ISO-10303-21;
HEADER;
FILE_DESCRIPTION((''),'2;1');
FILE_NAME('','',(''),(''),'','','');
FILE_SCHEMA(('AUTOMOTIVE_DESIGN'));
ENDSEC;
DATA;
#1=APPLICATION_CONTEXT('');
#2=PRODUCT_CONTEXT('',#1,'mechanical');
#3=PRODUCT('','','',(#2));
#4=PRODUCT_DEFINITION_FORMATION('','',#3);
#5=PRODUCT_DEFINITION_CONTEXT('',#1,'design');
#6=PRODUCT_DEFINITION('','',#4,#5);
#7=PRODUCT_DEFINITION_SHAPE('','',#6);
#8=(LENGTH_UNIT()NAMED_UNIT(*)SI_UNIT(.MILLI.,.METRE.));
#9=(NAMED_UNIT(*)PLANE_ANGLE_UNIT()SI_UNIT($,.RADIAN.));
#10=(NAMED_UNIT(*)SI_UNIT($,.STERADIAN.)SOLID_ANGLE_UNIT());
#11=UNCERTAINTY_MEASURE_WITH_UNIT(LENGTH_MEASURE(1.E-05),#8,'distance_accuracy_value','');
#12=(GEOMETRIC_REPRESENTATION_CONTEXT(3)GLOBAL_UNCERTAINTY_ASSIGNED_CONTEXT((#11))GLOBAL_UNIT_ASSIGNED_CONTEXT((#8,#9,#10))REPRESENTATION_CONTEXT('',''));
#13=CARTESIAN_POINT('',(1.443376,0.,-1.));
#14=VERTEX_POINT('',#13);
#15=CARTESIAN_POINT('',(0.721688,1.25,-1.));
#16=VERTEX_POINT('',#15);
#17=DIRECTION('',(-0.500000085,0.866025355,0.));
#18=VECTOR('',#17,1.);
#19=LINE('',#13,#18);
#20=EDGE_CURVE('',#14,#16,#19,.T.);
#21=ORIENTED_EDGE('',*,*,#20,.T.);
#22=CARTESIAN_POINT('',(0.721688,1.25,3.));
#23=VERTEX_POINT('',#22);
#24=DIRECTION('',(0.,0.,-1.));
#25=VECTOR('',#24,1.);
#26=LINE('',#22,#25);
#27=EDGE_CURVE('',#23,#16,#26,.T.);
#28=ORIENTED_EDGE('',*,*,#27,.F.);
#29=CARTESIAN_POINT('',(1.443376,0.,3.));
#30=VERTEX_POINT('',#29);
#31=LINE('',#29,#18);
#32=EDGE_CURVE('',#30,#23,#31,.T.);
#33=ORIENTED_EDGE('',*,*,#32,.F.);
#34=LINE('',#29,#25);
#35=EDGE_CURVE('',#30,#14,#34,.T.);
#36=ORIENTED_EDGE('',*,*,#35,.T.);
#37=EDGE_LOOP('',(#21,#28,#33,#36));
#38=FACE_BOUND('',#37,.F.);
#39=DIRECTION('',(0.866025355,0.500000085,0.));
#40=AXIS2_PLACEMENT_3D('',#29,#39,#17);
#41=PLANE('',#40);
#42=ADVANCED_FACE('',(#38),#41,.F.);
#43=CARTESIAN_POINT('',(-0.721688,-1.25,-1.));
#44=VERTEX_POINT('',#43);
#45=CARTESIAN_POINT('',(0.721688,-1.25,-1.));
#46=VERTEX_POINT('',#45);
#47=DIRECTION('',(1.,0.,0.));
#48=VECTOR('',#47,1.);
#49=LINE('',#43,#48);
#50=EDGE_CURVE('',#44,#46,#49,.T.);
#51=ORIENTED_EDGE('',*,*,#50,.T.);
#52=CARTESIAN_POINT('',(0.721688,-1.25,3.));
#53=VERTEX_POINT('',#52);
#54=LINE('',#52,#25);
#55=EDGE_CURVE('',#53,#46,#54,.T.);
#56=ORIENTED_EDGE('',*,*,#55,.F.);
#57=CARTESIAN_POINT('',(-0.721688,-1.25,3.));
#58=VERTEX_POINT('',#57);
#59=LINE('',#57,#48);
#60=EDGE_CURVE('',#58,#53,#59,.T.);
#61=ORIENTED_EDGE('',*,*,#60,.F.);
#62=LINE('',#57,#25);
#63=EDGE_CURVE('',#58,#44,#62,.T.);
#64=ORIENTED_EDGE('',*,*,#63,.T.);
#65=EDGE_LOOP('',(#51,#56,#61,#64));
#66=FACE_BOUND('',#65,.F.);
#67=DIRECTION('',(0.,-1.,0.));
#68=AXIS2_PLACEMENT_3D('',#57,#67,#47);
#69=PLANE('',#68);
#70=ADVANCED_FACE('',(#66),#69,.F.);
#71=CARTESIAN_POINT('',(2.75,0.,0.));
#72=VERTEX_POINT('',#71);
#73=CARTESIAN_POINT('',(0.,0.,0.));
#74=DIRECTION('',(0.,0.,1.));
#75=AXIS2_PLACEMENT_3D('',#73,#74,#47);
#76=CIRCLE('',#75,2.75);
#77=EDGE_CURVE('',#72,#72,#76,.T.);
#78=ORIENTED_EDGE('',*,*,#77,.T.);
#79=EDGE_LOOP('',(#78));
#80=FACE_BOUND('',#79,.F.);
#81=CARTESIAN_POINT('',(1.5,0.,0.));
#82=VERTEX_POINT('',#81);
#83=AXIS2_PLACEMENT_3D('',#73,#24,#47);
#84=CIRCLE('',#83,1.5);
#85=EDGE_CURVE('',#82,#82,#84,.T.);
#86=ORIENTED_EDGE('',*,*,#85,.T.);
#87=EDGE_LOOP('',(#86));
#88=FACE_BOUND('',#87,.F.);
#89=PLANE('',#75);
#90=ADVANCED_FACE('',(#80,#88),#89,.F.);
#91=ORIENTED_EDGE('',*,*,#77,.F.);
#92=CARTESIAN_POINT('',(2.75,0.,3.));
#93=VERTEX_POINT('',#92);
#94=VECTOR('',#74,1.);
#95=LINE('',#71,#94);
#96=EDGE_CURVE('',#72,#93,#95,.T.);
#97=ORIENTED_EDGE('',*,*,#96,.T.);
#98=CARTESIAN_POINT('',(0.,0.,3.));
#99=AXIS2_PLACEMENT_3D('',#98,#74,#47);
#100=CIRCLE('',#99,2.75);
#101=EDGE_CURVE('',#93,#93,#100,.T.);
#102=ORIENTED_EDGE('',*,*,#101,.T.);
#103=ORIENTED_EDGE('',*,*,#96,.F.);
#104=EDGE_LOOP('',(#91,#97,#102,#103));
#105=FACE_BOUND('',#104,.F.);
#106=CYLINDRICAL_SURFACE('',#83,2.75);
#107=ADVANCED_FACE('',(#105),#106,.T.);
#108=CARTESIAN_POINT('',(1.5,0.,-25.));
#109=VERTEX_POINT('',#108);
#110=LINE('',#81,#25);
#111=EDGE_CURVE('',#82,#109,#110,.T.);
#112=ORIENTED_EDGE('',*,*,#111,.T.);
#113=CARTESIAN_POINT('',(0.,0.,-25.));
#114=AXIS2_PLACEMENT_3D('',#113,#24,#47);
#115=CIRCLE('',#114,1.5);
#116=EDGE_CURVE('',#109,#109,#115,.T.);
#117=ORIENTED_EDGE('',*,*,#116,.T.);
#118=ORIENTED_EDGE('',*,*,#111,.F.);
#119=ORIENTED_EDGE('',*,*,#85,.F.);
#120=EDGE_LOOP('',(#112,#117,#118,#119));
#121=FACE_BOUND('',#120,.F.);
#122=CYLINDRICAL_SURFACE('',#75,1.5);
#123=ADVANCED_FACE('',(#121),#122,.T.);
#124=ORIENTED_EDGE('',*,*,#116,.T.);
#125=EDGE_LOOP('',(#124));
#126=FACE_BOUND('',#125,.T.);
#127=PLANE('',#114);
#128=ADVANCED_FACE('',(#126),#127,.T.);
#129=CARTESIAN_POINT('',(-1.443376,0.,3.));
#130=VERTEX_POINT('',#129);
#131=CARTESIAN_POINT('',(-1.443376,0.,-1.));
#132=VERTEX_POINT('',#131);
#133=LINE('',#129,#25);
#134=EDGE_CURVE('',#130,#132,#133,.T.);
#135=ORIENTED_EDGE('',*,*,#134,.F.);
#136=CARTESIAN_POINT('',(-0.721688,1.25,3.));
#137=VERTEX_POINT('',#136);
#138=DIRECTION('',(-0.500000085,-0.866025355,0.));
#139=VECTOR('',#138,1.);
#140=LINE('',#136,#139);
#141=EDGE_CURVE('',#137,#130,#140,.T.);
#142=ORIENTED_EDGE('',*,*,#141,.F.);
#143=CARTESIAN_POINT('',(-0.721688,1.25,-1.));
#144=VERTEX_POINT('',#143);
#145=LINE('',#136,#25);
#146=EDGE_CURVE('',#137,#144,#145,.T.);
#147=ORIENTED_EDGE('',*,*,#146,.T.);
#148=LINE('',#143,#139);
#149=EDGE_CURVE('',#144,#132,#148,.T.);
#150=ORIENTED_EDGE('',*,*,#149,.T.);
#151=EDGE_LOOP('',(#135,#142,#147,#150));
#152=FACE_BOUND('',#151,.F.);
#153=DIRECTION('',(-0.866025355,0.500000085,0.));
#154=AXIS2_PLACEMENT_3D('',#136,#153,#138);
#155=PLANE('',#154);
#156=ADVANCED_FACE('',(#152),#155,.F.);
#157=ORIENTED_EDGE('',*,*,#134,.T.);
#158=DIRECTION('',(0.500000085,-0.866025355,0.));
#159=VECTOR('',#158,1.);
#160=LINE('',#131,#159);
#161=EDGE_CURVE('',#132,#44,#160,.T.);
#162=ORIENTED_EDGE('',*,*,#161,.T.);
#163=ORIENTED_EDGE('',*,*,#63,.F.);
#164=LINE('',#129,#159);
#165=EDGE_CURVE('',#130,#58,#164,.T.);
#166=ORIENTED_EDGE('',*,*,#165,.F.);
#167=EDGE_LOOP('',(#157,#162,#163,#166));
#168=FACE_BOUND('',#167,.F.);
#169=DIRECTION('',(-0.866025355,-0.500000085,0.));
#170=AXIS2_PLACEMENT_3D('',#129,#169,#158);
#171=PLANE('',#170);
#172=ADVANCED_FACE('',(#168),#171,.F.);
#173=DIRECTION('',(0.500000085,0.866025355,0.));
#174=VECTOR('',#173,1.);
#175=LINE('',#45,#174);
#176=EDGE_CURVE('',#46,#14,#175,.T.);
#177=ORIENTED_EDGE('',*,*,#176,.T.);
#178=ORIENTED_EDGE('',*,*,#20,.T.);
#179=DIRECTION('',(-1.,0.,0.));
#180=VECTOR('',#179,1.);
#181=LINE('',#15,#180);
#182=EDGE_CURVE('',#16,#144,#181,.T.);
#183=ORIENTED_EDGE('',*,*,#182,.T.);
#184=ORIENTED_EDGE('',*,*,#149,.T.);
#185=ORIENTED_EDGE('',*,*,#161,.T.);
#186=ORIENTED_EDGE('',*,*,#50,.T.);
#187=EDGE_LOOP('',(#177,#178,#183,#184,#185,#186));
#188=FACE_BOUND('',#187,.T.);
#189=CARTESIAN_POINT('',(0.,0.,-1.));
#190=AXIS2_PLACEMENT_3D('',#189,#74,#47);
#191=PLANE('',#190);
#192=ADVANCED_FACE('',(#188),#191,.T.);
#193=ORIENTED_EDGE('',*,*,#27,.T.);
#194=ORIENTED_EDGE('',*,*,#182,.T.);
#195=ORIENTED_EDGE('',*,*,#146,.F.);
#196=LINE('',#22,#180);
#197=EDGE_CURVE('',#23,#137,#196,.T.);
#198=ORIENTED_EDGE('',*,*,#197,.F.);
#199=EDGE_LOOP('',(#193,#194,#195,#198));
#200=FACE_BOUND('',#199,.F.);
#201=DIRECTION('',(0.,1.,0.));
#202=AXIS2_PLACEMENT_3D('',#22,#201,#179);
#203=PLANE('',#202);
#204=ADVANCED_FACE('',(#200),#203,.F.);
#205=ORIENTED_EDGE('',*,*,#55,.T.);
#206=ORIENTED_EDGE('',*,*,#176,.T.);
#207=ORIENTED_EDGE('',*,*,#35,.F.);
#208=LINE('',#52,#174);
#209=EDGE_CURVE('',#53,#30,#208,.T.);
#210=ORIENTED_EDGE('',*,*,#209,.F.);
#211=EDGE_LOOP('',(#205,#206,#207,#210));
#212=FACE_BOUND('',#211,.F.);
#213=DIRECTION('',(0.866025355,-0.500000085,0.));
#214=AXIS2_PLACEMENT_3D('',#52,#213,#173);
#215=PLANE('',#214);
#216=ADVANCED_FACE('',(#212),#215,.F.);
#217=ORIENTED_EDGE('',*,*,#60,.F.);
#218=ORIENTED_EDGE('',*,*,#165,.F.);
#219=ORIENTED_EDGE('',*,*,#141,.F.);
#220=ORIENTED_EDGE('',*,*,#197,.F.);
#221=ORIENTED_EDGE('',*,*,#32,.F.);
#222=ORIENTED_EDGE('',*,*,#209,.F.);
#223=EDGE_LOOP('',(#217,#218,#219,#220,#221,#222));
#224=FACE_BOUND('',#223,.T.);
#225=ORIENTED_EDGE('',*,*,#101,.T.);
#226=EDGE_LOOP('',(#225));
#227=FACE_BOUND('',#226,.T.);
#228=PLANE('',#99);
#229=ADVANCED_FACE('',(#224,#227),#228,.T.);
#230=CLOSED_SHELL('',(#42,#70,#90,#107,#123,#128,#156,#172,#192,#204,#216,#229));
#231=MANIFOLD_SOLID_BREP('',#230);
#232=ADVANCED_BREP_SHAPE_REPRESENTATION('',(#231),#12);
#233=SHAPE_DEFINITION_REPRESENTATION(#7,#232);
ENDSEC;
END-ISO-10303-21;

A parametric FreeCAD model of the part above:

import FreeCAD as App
import Part
import Sketcher
Q = App.Units.Quantity


def add_polygon(sketch, points):
    """Adds a closed chain of lines whose ends are joined by coincident constraints."""
    first, n = sketch.GeometryCount, len(points)
    for a, b in zip(points, points[1:] + points[:1]):
        sketch.addGeometry(Part.LineSegment(App.Vector(*a, 0), App.Vector(*b, 0)), False)
    for i in range(n):
        sketch.addConstraint(Sketcher.Constraint("Coincident", first + i, 2, first + (i + 1) % n, 1))

doc = App.newDocument("Part")
params = doc.addObject("Spreadsheet::Sheet", "Params")
for row, (alias, value) in enumerate([
    ("sketch1_diameter", "5.5 mm"),
    ("pad1_length", "3 mm"),
    ("sketch2_diameter", "3 mm"),
    ("pad2_length", "25 mm"),
    ("pocket1_length", "4 mm"),
], start=1):
    params.set(f"A{row}", alias)
    params.set(f"B{row}", "=" + value)
    params.setAlias(f"B{row}", alias)

body = doc.addObject("PartDesign::Body", "Body")

sketch1 = doc.addObject("Sketcher::SketchObject", "Sketch")
body.addObject(sketch1)
sketch1.AttachmentSupport = (doc.XY_Plane, [""])
sketch1.MapMode = "FlatFace"
sketch1.addGeometry(Part.Circle(App.Vector(0, 0, 0), App.Vector(0, 0, 1), 2.8), False)
sketch1.addConstraint(Sketcher.Constraint("Coincident", 0, 3, -1, 1))
sketch1.addConstraint(Sketcher.Constraint("Diameter", 0, 5.5))
sketch1.setExpression("Constraints[1]", "Params.sketch1_diameter")
pad1 = doc.addObject("PartDesign::Pad", "Pad")
body.addObject(pad1)
pad1.Profile = sketch1
pad1.setExpression("Length", "Params.pad1_length")

sketch2 = doc.addObject("Sketcher::SketchObject", "Sketch001")
body.addObject(sketch2)
sketch2.AttachmentSupport = (doc.XY_Plane, [""])
sketch2.MapMode = "FlatFace"
sketch2.addGeometry(Part.Circle(App.Vector(0, 0, 0), App.Vector(0, 0, 1), 1.5), False)
sketch2.addConstraint(Sketcher.Constraint("Coincident", 0, 3, -1, 1))
sketch2.addConstraint(Sketcher.Constraint("Diameter", 0, 3.0))
sketch2.setExpression("Constraints[1]", "Params.sketch2_diameter")
pad2 = doc.addObject("PartDesign::Pad", "Pad001")
body.addObject(pad2)
pad2.Profile = sketch2
pad2.setExpression("Length", "Params.pad2_length")
pad2.Reversed = True

sketch3 = doc.addObject("Sketcher::SketchObject", "Sketch002")
body.addObject(sketch3)
sketch3.AttachmentSupport = (doc.XY_Plane, [""])
sketch3.MapMode = "FlatFace"
sketch3.AttachmentOffset = App.Placement(App.Vector(0, 0, 3), App.Rotation())
add_polygon(sketch3, [(0.7, -1.2), (1.4, 0), (0.7, 1.2), (-0.7, 1.2), (-1.4, 0), (-0.7, -1.2)])
sketch3.addConstraint(Sketcher.Constraint("Horizontal", 2))
sketch3.addConstraint(Sketcher.Constraint("Horizontal", 5))
sketch3.addConstraint(Sketcher.Constraint("Symmetric", 0, 2, 3, 2, -1, 1))
sketch3.addConstraint(Sketcher.Constraint("Symmetric", 1, 2, 4, 2, -1, 1))
sketch3.addConstraint(Sketcher.Constraint("PointOnObject", 0, 2, -1))
sketch3.addConstraint(Sketcher.Constraint("Parallel", 0, 3))
sketch3.addConstraint(Sketcher.Constraint("Vertical", 2, 2, 4, 2))
sketch3.addConstraint(Sketcher.Constraint("Angle", 0, Q("59.999994 deg")))
sketch3.addConstraint(Sketcher.Constraint("DistanceY", 4, 2, 2, 2, 2.5))
sketch3.addConstraint(Sketcher.Constraint("DistanceX", 2, 2, 2, 1, 1.443376))
pocket1 = doc.addObject("PartDesign::Pocket", "Pocket")
body.addObject(pocket1)
pocket1.Profile = sketch3
pocket1.setExpression("Length", "Params.pocket1_length")

doc.recompute()
